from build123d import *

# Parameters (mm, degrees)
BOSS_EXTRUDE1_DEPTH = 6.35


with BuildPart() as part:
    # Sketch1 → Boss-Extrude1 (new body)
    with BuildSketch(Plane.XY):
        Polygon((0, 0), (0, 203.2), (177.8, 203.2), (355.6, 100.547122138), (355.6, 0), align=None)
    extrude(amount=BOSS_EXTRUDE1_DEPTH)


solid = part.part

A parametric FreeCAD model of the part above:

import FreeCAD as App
import Part
import Sketcher

V = App.Vector
Q = App.Units.Quantity

doc = App.newDocument("Part")
body = doc.addObject("PartDesign::Body", "Body")

sketch1 = doc.addObject("Sketcher::SketchObject", "Sketch")
body.addObject(sketch1)
sketch1.AttachmentSupport = (doc.XY_Plane, [""])
sketch1.MapMode = "FlatFace"
sketch1.addGeometry([
    Part.LineSegment(V(0, 203, 0), V(0, 0, 0)),
    Part.LineSegment(V(0, 0, 0), V(356, 0, 0)),
    Part.LineSegment(V(356, 0, 0), V(356, 101, 0)),
    Part.LineSegment(V(356, 101, 0), V(178, 203, 0)),
    Part.LineSegment(V(178, 203, 0), V(0, 203, 0)),
], False)
sketch1.addConstraint([
    Sketcher.Constraint("Coincident", 0, 2, 1, 1),
    Sketcher.Constraint("Coincident", 1, 2, 2, 1),
    Sketcher.Constraint("Coincident", 2, 2, 3, 1),
    Sketcher.Constraint("Coincident", 3, 2, 4, 1),
    Sketcher.Constraint("Coincident", 4, 2, 0, 1),
    Sketcher.Constraint("Vertical", 0),
    Sketcher.Constraint("Horizontal", 1),
    Sketcher.Constraint("Vertical", 2),
    Sketcher.Constraint("Horizontal", 4),
    Sketcher.Constraint("Coincident", 0, 2, -1, 1),
    Sketcher.Constraint("DistanceX", 1, 1, 1, 2, Q("14 in")),
    Sketcher.Constraint("DistanceX", 4, 2, 4, 1, Q("7 in")),
    Sketcher.Constraint("DistanceY", 0, 2, 0, 1, Q("8 in")),
    Sketcher.Constraint("Angle", 3, Q("150 deg")),
])
pad1 = doc.addObject("PartDesign::Pad", "Pad")
body.addObject(pad1)
pad1.Profile = sketch1
pad1.Length = Q("0.25 in")

doc.recompute()
